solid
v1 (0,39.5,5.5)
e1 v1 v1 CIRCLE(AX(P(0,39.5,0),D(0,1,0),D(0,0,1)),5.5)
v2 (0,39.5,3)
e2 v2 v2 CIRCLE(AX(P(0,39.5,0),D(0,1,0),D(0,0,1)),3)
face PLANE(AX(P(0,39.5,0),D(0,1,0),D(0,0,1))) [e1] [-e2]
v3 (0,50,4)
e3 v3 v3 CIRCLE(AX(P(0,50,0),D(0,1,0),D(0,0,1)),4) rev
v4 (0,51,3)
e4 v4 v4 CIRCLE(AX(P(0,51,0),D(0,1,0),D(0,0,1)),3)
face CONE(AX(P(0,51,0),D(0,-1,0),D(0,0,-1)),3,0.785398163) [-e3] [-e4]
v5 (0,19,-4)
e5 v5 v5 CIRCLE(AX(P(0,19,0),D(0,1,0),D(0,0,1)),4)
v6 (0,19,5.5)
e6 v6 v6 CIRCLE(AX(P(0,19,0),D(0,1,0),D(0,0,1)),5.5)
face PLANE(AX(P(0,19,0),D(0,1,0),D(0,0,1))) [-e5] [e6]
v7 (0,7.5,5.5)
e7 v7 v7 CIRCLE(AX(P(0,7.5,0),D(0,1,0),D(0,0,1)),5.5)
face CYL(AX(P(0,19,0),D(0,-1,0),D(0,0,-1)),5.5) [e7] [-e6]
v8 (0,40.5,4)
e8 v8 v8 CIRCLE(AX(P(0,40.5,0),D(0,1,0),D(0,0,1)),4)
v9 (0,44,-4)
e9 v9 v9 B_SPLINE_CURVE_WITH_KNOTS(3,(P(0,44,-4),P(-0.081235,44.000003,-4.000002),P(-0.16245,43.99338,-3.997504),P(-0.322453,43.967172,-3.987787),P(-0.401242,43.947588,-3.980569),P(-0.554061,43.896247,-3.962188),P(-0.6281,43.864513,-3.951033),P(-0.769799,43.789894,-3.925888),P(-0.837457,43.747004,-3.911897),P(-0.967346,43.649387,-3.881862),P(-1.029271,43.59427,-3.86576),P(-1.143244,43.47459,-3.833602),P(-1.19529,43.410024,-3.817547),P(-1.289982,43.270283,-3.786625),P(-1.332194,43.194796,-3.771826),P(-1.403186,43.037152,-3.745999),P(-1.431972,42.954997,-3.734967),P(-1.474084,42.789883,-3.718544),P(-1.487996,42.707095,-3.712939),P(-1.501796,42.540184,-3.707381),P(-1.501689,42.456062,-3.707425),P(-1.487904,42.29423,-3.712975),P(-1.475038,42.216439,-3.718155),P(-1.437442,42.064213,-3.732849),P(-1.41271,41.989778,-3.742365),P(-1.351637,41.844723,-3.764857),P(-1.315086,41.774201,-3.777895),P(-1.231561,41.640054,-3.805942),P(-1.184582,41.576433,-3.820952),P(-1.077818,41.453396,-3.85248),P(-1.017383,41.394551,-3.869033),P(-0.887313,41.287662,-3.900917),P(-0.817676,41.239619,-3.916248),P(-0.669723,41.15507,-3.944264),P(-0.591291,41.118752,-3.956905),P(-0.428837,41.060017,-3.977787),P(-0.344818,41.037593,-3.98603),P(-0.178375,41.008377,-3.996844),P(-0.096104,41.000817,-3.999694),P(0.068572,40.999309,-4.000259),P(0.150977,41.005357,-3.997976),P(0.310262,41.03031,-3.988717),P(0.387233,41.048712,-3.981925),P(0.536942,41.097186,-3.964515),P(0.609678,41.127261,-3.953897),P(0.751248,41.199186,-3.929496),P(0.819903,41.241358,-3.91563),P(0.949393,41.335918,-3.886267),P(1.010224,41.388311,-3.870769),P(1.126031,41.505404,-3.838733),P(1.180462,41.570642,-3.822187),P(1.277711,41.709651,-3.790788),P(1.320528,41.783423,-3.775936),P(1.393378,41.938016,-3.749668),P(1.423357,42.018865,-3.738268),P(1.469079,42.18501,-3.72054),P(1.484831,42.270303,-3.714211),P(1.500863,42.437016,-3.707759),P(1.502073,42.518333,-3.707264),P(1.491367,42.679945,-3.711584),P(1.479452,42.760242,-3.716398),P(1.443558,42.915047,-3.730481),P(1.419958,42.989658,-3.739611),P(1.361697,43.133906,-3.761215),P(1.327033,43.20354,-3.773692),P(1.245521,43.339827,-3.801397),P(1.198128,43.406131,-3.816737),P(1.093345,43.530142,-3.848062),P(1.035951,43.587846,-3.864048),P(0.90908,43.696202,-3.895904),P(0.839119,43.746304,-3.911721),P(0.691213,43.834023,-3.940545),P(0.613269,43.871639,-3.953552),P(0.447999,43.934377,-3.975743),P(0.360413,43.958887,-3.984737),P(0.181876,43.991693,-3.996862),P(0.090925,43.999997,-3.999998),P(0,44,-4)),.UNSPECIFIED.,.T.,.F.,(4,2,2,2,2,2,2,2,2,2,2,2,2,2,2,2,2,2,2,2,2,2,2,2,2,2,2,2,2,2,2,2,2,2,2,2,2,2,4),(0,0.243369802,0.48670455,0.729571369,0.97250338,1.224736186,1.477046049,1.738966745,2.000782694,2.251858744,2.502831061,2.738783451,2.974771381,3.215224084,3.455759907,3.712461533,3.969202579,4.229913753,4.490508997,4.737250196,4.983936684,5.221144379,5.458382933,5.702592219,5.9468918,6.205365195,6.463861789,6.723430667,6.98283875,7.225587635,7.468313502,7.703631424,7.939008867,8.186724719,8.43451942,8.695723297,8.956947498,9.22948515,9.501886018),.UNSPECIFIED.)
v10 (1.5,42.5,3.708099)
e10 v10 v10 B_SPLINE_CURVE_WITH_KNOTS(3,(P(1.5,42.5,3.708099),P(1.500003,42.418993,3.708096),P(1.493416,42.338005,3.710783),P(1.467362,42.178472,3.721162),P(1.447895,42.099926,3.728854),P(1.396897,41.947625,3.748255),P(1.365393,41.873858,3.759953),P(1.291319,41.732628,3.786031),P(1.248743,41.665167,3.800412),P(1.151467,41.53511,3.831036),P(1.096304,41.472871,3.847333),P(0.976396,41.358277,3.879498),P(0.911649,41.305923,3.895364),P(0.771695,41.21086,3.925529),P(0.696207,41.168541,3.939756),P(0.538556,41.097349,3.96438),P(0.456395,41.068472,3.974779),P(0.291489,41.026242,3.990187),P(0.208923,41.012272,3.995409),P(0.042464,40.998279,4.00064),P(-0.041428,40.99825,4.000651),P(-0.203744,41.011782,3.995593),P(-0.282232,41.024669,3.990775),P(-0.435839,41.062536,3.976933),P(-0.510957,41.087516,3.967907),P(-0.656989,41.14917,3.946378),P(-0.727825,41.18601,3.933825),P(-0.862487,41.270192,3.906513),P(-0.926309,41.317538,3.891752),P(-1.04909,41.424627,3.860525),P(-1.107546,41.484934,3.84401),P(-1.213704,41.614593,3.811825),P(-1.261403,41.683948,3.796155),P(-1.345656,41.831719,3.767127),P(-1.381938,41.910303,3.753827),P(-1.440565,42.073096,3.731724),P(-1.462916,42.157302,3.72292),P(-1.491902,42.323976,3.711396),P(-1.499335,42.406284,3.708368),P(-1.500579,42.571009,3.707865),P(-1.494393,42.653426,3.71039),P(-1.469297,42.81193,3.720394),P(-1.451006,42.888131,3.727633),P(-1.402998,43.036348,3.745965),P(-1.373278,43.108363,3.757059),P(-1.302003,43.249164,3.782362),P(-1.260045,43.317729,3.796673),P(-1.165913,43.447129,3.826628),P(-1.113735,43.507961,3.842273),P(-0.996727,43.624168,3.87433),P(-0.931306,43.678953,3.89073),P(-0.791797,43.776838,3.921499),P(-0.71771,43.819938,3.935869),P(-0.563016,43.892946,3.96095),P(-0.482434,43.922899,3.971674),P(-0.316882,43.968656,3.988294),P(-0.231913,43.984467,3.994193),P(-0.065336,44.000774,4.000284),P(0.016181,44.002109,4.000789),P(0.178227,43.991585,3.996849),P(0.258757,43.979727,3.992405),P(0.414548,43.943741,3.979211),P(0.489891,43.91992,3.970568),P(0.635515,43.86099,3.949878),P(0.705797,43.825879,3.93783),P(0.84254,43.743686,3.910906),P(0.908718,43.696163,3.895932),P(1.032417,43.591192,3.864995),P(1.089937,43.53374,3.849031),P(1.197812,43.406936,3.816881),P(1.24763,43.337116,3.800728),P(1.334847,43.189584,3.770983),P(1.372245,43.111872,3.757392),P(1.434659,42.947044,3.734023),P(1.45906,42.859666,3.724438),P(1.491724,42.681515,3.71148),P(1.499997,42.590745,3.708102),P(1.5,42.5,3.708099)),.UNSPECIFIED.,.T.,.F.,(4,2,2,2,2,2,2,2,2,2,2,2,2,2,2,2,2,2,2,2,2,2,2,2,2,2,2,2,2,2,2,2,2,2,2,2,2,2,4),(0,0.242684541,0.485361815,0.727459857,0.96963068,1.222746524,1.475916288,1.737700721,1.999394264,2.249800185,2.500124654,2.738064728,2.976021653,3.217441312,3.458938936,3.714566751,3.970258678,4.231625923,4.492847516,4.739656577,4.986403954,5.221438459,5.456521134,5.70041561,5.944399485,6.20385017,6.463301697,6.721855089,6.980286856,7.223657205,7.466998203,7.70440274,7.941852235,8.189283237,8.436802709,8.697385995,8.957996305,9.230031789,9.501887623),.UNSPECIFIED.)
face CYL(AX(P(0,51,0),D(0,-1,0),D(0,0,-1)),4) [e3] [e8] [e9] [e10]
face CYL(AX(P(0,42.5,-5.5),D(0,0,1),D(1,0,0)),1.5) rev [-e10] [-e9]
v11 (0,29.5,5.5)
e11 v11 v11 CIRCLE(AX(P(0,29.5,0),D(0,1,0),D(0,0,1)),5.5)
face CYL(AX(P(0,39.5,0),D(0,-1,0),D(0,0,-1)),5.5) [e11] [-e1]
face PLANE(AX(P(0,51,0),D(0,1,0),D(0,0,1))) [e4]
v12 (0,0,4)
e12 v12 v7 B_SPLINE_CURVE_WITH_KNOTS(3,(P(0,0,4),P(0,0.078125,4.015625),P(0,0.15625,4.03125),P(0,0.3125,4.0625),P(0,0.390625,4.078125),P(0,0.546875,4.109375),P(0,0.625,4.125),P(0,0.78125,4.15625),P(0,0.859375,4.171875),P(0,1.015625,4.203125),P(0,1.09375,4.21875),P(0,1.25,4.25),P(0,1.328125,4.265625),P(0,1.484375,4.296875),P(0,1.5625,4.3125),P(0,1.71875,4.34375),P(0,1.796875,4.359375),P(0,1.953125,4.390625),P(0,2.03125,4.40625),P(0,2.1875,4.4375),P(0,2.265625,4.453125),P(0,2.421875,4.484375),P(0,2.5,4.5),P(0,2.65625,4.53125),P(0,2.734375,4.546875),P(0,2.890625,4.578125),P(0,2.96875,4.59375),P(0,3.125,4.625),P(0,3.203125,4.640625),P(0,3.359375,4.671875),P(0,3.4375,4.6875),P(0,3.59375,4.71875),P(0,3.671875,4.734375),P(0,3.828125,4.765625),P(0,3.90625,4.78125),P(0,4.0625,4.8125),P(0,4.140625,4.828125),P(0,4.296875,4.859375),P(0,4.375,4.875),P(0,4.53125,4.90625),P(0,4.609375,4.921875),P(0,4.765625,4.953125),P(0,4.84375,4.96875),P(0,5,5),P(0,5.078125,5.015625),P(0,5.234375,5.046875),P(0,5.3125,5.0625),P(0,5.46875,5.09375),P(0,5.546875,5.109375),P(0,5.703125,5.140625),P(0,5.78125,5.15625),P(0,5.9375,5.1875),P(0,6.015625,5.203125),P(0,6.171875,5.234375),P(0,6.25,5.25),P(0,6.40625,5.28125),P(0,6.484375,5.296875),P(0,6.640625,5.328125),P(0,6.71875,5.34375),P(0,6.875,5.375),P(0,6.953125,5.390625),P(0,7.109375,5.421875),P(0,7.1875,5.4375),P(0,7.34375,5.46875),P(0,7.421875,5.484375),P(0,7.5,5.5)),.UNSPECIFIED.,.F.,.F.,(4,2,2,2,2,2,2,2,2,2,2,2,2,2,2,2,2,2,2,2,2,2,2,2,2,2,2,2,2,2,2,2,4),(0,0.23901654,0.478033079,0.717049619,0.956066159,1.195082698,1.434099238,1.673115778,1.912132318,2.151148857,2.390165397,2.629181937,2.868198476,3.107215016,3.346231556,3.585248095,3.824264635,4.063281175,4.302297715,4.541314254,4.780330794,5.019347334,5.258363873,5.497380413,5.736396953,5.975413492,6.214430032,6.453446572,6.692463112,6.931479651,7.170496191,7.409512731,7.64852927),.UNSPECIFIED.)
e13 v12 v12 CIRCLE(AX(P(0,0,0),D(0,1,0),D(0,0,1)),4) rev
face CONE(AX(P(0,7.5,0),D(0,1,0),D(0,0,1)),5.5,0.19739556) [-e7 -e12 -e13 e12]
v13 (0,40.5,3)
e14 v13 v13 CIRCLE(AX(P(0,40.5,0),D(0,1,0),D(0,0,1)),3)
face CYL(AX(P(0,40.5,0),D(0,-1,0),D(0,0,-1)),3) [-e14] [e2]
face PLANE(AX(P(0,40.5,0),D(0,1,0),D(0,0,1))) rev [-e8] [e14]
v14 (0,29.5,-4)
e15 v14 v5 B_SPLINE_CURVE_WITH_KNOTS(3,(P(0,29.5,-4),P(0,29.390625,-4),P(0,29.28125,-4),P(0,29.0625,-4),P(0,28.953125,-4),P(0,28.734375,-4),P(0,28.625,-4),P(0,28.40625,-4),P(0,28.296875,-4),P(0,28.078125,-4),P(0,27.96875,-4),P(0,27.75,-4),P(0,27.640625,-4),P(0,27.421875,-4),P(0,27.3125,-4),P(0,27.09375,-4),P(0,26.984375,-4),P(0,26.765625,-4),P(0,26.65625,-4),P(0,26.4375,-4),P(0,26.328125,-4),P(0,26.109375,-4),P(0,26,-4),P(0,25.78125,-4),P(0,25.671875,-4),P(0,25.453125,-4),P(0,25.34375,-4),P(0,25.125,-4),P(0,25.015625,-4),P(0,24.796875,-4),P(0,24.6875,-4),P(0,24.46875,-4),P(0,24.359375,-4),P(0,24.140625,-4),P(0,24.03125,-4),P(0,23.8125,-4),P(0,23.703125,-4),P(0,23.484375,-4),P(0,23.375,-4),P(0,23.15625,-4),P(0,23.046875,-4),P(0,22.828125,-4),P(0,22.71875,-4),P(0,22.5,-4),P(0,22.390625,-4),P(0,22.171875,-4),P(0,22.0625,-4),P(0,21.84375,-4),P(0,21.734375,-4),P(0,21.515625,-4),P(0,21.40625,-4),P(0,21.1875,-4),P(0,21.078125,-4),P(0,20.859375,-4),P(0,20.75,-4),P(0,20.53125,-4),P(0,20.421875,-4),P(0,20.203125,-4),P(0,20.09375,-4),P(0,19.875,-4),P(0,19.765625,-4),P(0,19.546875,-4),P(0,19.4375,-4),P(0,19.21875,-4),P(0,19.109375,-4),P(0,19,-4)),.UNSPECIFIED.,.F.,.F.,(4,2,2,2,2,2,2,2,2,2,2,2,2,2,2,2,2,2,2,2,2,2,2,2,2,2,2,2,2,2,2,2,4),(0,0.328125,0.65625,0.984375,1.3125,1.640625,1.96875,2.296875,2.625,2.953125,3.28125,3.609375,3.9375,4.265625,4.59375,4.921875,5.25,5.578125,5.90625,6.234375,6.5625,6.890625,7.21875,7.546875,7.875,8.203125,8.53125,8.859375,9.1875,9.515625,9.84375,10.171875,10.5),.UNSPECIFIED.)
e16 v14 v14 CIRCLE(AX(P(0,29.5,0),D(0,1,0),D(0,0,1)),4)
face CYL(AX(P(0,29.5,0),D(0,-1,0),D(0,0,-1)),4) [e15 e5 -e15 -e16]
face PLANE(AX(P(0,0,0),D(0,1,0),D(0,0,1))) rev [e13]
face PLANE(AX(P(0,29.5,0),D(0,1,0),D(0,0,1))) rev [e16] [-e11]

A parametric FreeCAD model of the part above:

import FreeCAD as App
import Part
import Sketcher

V = App.Vector
Q = App.Units.Quantity


def edges_at(feature, points):
    """Names of the edges that pass closest to the given points."""
    edges = feature.Shape.Edges
    near = lambda p: min(range(len(edges)), key=lambda i: edges[i].distToShape(Part.Vertex(*p))[0])
    return sorted({f"Edge{near(p) + 1}" for p in points})

doc = App.newDocument("Part")
body = doc.addObject("PartDesign::Body", "Body")

sketch1 = doc.addObject("Sketcher::SketchObject", "Sketch")
body.addObject(sketch1)
sketch1.AttachmentSupport = (doc.XZ_Plane, [""])
sketch1.MapMode = "FlatFace"
sketch1.addGeometry(Part.Circle(V(0, 0, 0), V(0, 0, 1), 5.5), False)
sketch1.addConstraint([
    Sketcher.Constraint("Coincident", 0, 3, -1, 1),
    Sketcher.Constraint("Diameter", 0, Q("11 mm")),
])
pad1 = doc.addObject("PartDesign::Pad", "Pad")
body.addObject(pad1)
pad1.Profile = sketch1
pad1.Length = 19
pad1.Reversed = True
doc.recompute()

chamfer = doc.addObject("PartDesign::Chamfer", "Chamfer")
body.addObject(chamfer)
chamfer.Base = (pad1, edges_at(pad1, [(0, 0, -5.5)]))
chamfer.ChamferType = "Two distances"
chamfer.Size = 1.5
chamfer.Size2 = 7.5
chamfer.FlipDirection = True

sketch2 = doc.addObject("Sketcher::SketchObject", "Sketch001")
body.addObject(sketch2)
sketch2.AttachmentSupport = (doc.XZ_Plane, [""])
sketch2.MapMode = "FlatFace"
sketch2.AttachmentOffset = App.Placement(V(0, 0, -19), App.Rotation())
sketch2.addGeometry(Part.Circle(V(0, 0, 0), V(0, 0, 1), 4), False)
sketch2.addConstraint([
    Sketcher.Constraint("Coincident", 0, 3, -1, 1),
    Sketcher.Constraint("Diameter", 0, Q("8 mm")),
])
pad2 = doc.addObject("PartDesign::Pad", "Pad001")
body.addObject(pad2)
pad2.Profile = sketch2
pad2.Length = 10.5
pad2.Reversed = True

sketch3 = doc.addObject("Sketcher::SketchObject", "Sketch002")
body.addObject(sketch3)
sketch3.AttachmentSupport = (doc.XZ_Plane, [""])
sketch3.MapMode = "FlatFace"
sketch3.AttachmentOffset = App.Placement(V(0, 0, -29.5), App.Rotation())
sketch3.addGeometry(Part.Circle(V(0, 0, 0), V(0, 0, 1), 5.5), False)
sketch3.addConstraint([
    Sketcher.Constraint("Coincident", 0, 3, -1, 1),
    Sketcher.Constraint("Diameter", 0, Q("11 mm")),
])
pad3 = doc.addObject("PartDesign::Pad", "Pad002")
body.addObject(pad3)
pad3.Profile = sketch3
pad3.Length = 10
pad3.Reversed = True

sketch4 = doc.addObject("Sketcher::SketchObject", "Sketch003")
body.addObject(sketch4)
sketch4.AttachmentSupport = (doc.XZ_Plane, [""])
sketch4.MapMode = "FlatFace"
sketch4.AttachmentOffset = App.Placement(V(0, 0, -39.5), App.Rotation())
sketch4.addGeometry(Part.Circle(V(0, 0, 0), V(0, 0, 1), 3), False)
sketch4.addConstraint([
    Sketcher.Constraint("Coincident", 0, 3, -1, 1),
    Sketcher.Constraint("Diameter", 0, Q("6 mm")),
])
pad4 = doc.addObject("PartDesign::Pad", "Pad003")
body.addObject(pad4)
pad4.Profile = sketch4
pad4.Length = 1
pad4.Reversed = True

sketch5 = doc.addObject("Sketcher::SketchObject", "Sketch004")
body.addObject(sketch5)
sketch5.AttachmentSupport = (doc.XZ_Plane, [""])
sketch5.MapMode = "FlatFace"
sketch5.AttachmentOffset = App.Placement(V(0, 0, -40.5), App.Rotation())
sketch5.addGeometry(Part.Circle(V(0, 0, 0), V(0, 0, 1), 4), False)
sketch5.addConstraint([
    Sketcher.Constraint("Coincident", 0, 3, -1, 1),
    Sketcher.Constraint("Diameter", 0, Q("8 mm")),
])
pad5 = doc.addObject("PartDesign::Pad", "Pad004")
body.addObject(pad5)
pad5.Profile = sketch5
pad5.Length = 10.5
pad5.Reversed = True
doc.recompute()

chamfer2 = doc.addObject("PartDesign::Chamfer", "Chamfer001")
body.addObject(chamfer2)
chamfer2.Base = (pad5, edges_at(pad5, [(0, 51, 4)]))
chamfer2.Size = 1

sketch6 = doc.addObject("Sketcher::SketchObject", "Sketch005")
body.addObject(sketch6)
sketch6.AttachmentSupport = (doc.XY_Plane, [""])
sketch6.MapMode = "FlatFace"
sketch6.addGeometry(Part.Circle(V(0, 42.5, 0), V(0, 0, 1), 1.5), False)
sketch6.addConstraint([
    Sketcher.Constraint("PointOnObject", 0, 3, -2),
    Sketcher.Constraint("Diameter", 0, Q("3 mm")),
    Sketcher.Constraint("DistanceY", -1, 1, 0, 3, Q("42.5 mm")),
])
pocket1 = doc.addObject("PartDesign::Pocket", "Pocket")
body.addObject(pocket1)
pocket1.Profile = sketch6
pocket1.Type = "ThroughAll"
pocket1.Midplane = True

doc.recompute()
